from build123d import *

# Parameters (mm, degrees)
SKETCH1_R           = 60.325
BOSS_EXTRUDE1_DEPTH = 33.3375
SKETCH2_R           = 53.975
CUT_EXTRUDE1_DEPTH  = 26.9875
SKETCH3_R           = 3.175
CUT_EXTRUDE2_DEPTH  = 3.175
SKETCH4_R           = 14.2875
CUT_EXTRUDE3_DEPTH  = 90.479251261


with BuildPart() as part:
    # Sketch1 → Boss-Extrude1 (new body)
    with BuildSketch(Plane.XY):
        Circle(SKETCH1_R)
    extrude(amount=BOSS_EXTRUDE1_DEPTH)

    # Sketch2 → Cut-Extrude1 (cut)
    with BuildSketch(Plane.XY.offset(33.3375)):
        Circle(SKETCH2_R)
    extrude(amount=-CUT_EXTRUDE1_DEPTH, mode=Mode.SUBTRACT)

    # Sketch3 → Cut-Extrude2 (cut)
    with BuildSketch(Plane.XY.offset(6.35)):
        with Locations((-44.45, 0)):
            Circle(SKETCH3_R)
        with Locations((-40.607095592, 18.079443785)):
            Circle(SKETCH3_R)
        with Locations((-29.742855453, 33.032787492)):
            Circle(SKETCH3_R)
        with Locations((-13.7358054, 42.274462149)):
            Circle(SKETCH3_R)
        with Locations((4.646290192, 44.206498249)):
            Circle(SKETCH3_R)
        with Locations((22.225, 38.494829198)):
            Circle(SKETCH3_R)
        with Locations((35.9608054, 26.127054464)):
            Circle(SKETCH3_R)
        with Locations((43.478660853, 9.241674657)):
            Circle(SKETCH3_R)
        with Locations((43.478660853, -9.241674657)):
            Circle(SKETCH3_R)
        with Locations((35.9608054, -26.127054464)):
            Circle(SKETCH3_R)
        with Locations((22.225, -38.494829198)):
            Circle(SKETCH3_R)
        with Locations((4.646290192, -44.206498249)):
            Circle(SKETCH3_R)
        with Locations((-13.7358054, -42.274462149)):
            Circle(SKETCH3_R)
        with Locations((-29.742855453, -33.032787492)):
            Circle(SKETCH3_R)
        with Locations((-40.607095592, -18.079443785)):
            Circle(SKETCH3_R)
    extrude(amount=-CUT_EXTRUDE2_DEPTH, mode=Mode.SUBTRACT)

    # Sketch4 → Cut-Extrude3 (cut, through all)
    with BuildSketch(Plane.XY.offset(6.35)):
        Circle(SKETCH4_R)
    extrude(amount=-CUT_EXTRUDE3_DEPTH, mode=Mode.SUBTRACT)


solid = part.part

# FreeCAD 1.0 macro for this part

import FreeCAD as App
import Part
import Sketcher
Q = App.Units.Quantity

doc = App.newDocument("Part")
body = doc.addObject("PartDesign::Body", "Body")

# Sketch on XY plane
sketch1 = doc.addObject("Sketcher::SketchObject", "Sketch")
body.addObject(sketch1)
sketch1.AttachmentSupport = (doc.XY_Plane, [""])
sketch1.MapMode = "FlatFace"
sketch1.addGeometry(Part.Circle(App.Vector(0, 0, 0), App.Vector(0, 0, 1), 60), False)
sketch1.addConstraint([
    Sketcher.Constraint("Coincident", 0, 3, -1, 1),
    Sketcher.Constraint("Diameter", 0, Q("4.75 in")),
])
pad1 = doc.addObject("PartDesign::Pad", "Pad")
body.addObject(pad1)
pad1.Profile = sketch1
pad1.Length = Q("1.3125 in")

# Sketch on XY plane
sketch2 = doc.addObject("Sketcher::SketchObject", "Sketch001")
body.addObject(sketch2)
sketch2.AttachmentSupport = (doc.XY_Plane, [""])
sketch2.MapMode = "FlatFace"
sketch2.AttachmentOffset = App.Placement(App.Vector(0, 0, 1.3125 * 25.4), App.Rotation())
sketch2.addGeometry(Part.Circle(App.Vector(0, 0, 0), App.Vector(0, 0, 1), 54), False)
sketch2.addConstraint([
    Sketcher.Constraint("Coincident", 0, 3, -1, 1),
    Sketcher.Constraint("Diameter", 0, Q("4.25 in")),
])
pocket1 = doc.addObject("PartDesign::Pocket", "Pocket")
body.addObject(pocket1)
pocket1.Profile = sketch2
pocket1.Length = Q("1.0625 in")

# Sketch on XY plane
sketch3 = doc.addObject("Sketcher::SketchObject", "Sketch002")
body.addObject(sketch3)
sketch3.AttachmentSupport = (doc.XY_Plane, [""])
sketch3.MapMode = "FlatFace"
sketch3.AttachmentOffset = App.Placement(App.Vector(0, 0, 0.25 * 25.4), App.Rotation())
sketch3.addGeometry([
    Part.Circle(App.Vector(-44.5, 0, 0), App.Vector(0, 0, 1), 3.2),  # 0
    Part.Circle(App.Vector(-40.6, 18.1, 0), App.Vector(0, 0, 1), 3.2),  # 1
    Part.Circle(App.Vector(-29.7, 33, 0), App.Vector(0, 0, 1), 3.2),  # 2
    Part.Circle(App.Vector(-13.7, 42.3, 0), App.Vector(0, 0, 1), 3.2),  # 3
    Part.Circle(App.Vector(4.6, 44.2, 0), App.Vector(0, 0, 1), 3.2),  # 4
    Part.Circle(App.Vector(22.2, 38.5, 0), App.Vector(0, 0, 1), 3.2),  # 5
    Part.Circle(App.Vector(36, 26.1, 0), App.Vector(0, 0, 1), 3.2),  # 6
    Part.Circle(App.Vector(43.5, 9.2, 0), App.Vector(0, 0, 1), 3.2),  # 7
    Part.Circle(App.Vector(43.5, -9.2, 0), App.Vector(0, 0, 1), 3.2),  # 8
    Part.Circle(App.Vector(36, -26.1, 0), App.Vector(0, 0, 1), 3.2),  # 9
    Part.Circle(App.Vector(22.2, -38.5, 0), App.Vector(0, 0, 1), 3.2),  # 10
    Part.Circle(App.Vector(4.6, -44.2, 0), App.Vector(0, 0, 1), 3.2),  # 11
    Part.Circle(App.Vector(-13.7, -42.3, 0), App.Vector(0, 0, 1), 3.2),  # 12
    Part.Circle(App.Vector(-29.7, -33, 0), App.Vector(0, 0, 1), 3.2),  # 13
    Part.Circle(App.Vector(-40.6, -18.1, 0), App.Vector(0, 0, 1), 3.2),  # 14
], False)
sketch3.addConstraint([
    Sketcher.Constraint("Equal", 0, 1),
    Sketcher.Constraint("Equal", 1, 2),
    Sketcher.Constraint("Equal", 2, 3),
    Sketcher.Constraint("Equal", 3, 4),
    Sketcher.Constraint("Equal", 4, 5),
    Sketcher.Constraint("Equal", 5, 6),
    Sketcher.Constraint("Equal", 6, 7),
    Sketcher.Constraint("Equal", 7, 8),
    Sketcher.Constraint("Equal", 8, 9),
    Sketcher.Constraint("Equal", 9, 10),
    Sketcher.Constraint("Equal", 10, 11),
    Sketcher.Constraint("Equal", 11, 12),
    Sketcher.Constraint("Equal", 12, 13),
    Sketcher.Constraint("Equal", 13, 14),
    Sketcher.Constraint("Symmetric", 7, 3, 8, 3, -1),
    Sketcher.Constraint("Symmetric", 6, 3, 9, 3, -1),
    Sketcher.Constraint("Symmetric", 5, 3, 10, 3, -1),
    Sketcher.Constraint("Symmetric", 4, 3, 11, 3, -1),
    Sketcher.Constraint("Symmetric", 3, 3, 12, 3, -1),
    Sketcher.Constraint("Symmetric", 2, 3, 13, 3, -1),
    Sketcher.Constraint("Symmetric", 1, 3, 14, 3, -1),
    Sketcher.Constraint("PointOnObject", 0, 3, -1),
    Sketcher.Constraint("Diameter", 0, Q("0.25 in")),
    Sketcher.Constraint("DistanceX", 0, 3, -1, 1, Q("1.75 in")),
    Sketcher.Constraint("DistanceX", -1, 1, 5, 3, Q("0.875 in")),
    Sketcher.Constraint("DistanceY", -1, 1, 4, 3, Q("44.206498 mm")),
    Sketcher.Constraint("DistanceX", 1, 3, 6, 3, Q("76.567901 mm")),
    Sketcher.Constraint("DistanceX", -1, 1, 4, 3, Q("4.64629 mm")),
    Sketcher.Constraint("DistanceY", -1, 1, 5, 3, Q("38.494829 mm")),
    Sketcher.Constraint("DistanceX", -1, 1, 7, 3, Q("43.478661 mm")),
    Sketcher.Constraint("DistanceX", 1, 3, 2, 3, Q("10.86424 mm")),
    Sketcher.Constraint("DistanceX", 2, 3, 3, 3, Q("16.00705 mm")),
    Sketcher.Constraint("DistanceY", 1, 3, 3, 3, Q("24.195018 mm")),
    Sketcher.Constraint("DistanceY", 2, 3, 4, 3, Q("11.173711 mm")),
    Sketcher.Constraint("DistanceY", 1, 3, 6, 3, Q("8.047611 mm")),
    Sketcher.Constraint("DistanceY", 7, 3, 6, 3, Q("16.88538 mm")),
    Sketcher.Constraint("DistanceY", 8, 3, 7, 3, Q("18.483349 mm")),
    Sketcher.Constraint("DistanceX", 1, 3, -1, 1, Q("40.607096 mm")),
])
pocket2 = doc.addObject("PartDesign::Pocket", "Pocket001")
body.addObject(pocket2)
pocket2.Profile = sketch3
pocket2.Length = Q("0.125 in")

# Sketch on XY plane
sketch4 = doc.addObject("Sketcher::SketchObject", "Sketch003")
body.addObject(sketch4)
sketch4.AttachmentSupport = (doc.XY_Plane, [""])
sketch4.MapMode = "FlatFace"
sketch4.AttachmentOffset = App.Placement(App.Vector(0, 0, 0.25 * 25.4), App.Rotation())
sketch4.addGeometry(Part.Circle(App.Vector(0, 0, 0), App.Vector(0, 0, 1), 14), False)
sketch4.addConstraint([
    Sketcher.Constraint("Coincident", 0, 3, -1, 1),
    Sketcher.Constraint("Diameter", 0, Q("1.125 in")),
])
pocket3 = doc.addObject("PartDesign::Pocket", "Pocket002")
body.addObject(pocket3)
pocket3.Profile = sketch4
pocket3.Type = "ThroughAll"

doc.recompute()
